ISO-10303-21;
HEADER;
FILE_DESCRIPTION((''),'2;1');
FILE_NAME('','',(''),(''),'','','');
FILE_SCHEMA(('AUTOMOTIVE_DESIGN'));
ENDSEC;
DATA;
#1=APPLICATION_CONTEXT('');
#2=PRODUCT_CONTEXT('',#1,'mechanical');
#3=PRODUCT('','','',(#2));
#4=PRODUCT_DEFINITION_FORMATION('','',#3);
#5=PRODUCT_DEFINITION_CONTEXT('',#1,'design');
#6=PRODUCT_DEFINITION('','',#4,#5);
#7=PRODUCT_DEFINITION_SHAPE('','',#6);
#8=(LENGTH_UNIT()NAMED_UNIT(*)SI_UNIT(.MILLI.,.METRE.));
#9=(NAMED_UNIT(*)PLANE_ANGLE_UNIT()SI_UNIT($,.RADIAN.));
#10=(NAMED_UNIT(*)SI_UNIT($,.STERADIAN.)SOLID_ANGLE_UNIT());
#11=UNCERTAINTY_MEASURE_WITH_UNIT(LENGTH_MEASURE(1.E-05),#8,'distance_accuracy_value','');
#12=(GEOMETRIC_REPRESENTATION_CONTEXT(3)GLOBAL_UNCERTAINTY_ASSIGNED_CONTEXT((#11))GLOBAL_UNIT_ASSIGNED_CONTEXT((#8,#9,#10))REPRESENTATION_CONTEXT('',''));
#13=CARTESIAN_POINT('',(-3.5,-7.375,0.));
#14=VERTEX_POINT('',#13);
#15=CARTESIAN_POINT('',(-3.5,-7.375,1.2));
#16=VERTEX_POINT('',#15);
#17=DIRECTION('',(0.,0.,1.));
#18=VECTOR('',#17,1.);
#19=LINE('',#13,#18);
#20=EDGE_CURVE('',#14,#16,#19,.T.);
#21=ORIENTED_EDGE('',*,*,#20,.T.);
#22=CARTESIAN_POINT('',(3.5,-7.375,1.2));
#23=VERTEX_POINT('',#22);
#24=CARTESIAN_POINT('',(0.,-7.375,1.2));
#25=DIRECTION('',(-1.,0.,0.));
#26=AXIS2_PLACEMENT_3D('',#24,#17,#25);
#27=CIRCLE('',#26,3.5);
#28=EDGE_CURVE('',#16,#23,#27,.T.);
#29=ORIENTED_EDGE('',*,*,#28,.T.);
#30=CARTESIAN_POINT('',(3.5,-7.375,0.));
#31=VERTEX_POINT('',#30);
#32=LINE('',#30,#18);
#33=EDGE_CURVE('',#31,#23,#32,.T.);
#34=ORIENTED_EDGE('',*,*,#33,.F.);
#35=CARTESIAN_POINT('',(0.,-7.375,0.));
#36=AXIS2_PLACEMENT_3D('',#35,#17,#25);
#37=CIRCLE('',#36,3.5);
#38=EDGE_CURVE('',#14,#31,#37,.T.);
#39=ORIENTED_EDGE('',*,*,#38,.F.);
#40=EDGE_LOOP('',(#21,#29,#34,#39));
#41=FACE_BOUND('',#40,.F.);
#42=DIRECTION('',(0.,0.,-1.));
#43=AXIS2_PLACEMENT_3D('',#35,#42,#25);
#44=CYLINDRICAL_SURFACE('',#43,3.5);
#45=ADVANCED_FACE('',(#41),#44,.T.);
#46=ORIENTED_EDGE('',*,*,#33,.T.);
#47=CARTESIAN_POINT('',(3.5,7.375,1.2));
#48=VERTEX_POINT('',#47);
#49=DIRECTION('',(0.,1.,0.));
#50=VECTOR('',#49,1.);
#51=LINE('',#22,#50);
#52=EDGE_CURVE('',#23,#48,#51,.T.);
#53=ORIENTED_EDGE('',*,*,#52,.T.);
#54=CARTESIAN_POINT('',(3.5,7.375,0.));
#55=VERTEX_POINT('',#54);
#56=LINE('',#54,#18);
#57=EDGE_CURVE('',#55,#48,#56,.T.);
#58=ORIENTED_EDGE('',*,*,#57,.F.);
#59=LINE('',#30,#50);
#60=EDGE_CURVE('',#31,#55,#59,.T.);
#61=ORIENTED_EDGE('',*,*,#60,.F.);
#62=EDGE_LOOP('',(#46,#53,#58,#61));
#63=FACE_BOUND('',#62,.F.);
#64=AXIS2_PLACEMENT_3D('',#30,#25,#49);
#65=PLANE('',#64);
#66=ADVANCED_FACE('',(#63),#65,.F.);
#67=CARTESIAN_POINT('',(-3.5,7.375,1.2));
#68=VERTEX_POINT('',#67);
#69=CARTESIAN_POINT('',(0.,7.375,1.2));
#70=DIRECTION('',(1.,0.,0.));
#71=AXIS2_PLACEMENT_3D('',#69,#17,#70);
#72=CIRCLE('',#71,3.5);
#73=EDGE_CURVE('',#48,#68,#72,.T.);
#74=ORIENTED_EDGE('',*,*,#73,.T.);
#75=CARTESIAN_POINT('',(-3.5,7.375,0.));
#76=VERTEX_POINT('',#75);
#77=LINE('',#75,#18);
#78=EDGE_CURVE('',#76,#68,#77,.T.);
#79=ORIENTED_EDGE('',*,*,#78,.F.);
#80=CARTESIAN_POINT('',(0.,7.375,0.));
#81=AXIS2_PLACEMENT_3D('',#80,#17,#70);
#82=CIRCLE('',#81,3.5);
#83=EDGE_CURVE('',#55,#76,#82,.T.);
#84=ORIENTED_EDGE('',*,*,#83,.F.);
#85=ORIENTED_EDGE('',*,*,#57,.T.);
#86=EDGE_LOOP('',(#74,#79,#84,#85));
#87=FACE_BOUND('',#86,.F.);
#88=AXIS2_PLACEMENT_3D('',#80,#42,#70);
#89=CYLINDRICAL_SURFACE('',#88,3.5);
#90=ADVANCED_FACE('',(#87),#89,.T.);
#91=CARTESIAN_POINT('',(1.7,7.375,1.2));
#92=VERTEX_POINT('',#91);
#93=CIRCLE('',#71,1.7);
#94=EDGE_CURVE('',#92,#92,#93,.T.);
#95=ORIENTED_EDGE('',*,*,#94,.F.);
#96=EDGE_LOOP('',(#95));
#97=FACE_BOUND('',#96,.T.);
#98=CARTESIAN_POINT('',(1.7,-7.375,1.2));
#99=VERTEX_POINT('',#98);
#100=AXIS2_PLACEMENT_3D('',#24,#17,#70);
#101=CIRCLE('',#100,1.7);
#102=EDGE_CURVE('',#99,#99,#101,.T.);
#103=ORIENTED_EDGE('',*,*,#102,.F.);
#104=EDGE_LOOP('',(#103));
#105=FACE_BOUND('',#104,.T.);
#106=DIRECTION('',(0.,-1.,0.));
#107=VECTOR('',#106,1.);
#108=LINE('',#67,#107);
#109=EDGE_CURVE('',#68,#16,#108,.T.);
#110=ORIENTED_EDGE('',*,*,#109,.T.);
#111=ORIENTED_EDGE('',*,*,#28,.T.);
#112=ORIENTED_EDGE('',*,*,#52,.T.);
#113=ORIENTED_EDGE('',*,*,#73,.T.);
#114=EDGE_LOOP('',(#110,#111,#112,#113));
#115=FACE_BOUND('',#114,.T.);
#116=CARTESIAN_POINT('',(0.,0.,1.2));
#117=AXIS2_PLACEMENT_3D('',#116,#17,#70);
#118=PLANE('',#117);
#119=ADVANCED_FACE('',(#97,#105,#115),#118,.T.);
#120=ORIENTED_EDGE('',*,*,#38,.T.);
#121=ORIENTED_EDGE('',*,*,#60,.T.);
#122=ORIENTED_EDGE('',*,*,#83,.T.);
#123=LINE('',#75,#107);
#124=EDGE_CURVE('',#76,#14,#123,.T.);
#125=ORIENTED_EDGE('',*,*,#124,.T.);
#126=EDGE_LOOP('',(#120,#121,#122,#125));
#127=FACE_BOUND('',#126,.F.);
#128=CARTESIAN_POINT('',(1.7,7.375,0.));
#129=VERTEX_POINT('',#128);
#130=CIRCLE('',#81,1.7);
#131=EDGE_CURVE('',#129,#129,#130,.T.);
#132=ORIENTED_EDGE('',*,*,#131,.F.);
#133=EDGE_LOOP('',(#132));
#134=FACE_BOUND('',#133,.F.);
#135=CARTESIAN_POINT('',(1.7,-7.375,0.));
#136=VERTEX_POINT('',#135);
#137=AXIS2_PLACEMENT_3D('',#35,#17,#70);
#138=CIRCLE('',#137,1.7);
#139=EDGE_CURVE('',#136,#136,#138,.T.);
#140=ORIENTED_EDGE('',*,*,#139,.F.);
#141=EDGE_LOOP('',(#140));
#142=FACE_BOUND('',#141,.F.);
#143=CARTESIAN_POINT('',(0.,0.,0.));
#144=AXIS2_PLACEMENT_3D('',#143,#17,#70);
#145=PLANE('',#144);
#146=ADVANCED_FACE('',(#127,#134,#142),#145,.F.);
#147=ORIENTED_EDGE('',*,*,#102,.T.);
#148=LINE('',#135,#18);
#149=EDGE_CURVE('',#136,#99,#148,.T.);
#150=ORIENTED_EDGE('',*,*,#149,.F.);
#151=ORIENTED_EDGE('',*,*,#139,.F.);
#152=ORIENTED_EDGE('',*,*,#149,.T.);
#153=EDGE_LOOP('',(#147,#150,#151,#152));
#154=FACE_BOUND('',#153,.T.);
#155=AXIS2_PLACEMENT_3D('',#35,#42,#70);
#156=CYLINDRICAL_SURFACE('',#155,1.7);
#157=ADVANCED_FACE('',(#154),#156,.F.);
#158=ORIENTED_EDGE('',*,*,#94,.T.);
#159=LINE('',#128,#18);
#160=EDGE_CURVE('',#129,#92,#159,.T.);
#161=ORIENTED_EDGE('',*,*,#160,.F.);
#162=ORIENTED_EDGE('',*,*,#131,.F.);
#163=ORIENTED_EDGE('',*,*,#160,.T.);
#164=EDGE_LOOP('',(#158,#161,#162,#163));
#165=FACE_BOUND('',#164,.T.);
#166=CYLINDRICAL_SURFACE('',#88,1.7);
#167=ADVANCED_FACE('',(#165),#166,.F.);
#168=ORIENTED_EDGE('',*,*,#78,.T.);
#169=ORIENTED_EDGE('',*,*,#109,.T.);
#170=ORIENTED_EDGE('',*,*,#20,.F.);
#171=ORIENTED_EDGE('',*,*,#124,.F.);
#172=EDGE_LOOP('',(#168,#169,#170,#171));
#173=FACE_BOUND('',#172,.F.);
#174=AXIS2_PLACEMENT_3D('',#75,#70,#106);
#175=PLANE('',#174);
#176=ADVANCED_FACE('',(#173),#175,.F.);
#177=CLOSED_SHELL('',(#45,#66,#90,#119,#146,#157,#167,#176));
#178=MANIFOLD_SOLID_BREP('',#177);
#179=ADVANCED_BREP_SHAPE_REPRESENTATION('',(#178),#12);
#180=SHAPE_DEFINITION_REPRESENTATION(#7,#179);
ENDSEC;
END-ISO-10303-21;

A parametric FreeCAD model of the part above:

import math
import FreeCAD as App
import Part
import Sketcher
from FreeCAD import Vector
Q = App.Units.Quantity

doc = App.newDocument("Part")
body = doc.addObject("PartDesign::Body", "Body")

# Sketch on XY plane
sketch1 = body.newObject("Sketcher::SketchObject", "Sketch")
sketch1.AttachmentSupport = (doc.getObject("XY_Plane"), [""])
sketch1.MapMode = "FlatFace"
sketch1.addGeometry(Part.LineSegment(Vector(3.5, -7.4, 0), Vector(3.5, 7.4, 0)), False)
sketch1.addGeometry(Part.ArcOfCircle(Part.Circle(Vector(0, 7.4, 0), Vector(0, 0, 1), 3.5), math.radians(0), math.radians(180)), False)
sketch1.addGeometry(Part.LineSegment(Vector(-3.5, 7.4, 0), Vector(-3.5, -7.4, 0)), False)
sketch1.addGeometry(Part.ArcOfCircle(Part.Circle(Vector(0, -7.4, 0), Vector(0, 0, 1), 3.5), math.radians(180), math.radians(360)), False)
sketch1.addGeometry(Part.Circle(Vector(0, -7.4, 0), Vector(0, 0, 1), 1.7), False)
sketch1.addGeometry(Part.Circle(Vector(0, 7.4, 0), Vector(0, 0, 1), 1.7), False)
sketch1.addConstraint(Sketcher.Constraint("Tangent", 0, 2, 1, 1))
sketch1.addConstraint(Sketcher.Constraint("Tangent", 1, 2, 2, 1))
sketch1.addConstraint(Sketcher.Constraint("Tangent", 2, 2, 3, 1))
sketch1.addConstraint(Sketcher.Constraint("Tangent", 3, 2, 0, 1))
sketch1.addConstraint(Sketcher.Constraint("Vertical", 0))
sketch1.addConstraint(Sketcher.Constraint("Vertical", 2))
sketch1.addConstraint(Sketcher.Constraint("Coincident", 4, 3, 3, 3))
sketch1.addConstraint(Sketcher.Constraint("Coincident", 5, 3, 1, 3))
sketch1.addConstraint(Sketcher.Constraint("Equal", 4, 5))
sketch1.addConstraint(Sketcher.Constraint("Symmetric", 1, 3, 3, 3, -1, 1))
sketch1.addConstraint(Sketcher.Constraint("Diameter", 4, Q("3.4 mm")))
sketch1.addConstraint(Sketcher.Constraint("Radius", 1, Q("3.5 mm")))
sketch1.addConstraint(Sketcher.Constraint("DistanceY", 0, 1, 0, 2, Q("14.75 mm")))
pad1 = body.newObject("PartDesign::Pad", "Pad")
pad1.Profile = sketch1
pad1.Length = 1.2

doc.recompute()
